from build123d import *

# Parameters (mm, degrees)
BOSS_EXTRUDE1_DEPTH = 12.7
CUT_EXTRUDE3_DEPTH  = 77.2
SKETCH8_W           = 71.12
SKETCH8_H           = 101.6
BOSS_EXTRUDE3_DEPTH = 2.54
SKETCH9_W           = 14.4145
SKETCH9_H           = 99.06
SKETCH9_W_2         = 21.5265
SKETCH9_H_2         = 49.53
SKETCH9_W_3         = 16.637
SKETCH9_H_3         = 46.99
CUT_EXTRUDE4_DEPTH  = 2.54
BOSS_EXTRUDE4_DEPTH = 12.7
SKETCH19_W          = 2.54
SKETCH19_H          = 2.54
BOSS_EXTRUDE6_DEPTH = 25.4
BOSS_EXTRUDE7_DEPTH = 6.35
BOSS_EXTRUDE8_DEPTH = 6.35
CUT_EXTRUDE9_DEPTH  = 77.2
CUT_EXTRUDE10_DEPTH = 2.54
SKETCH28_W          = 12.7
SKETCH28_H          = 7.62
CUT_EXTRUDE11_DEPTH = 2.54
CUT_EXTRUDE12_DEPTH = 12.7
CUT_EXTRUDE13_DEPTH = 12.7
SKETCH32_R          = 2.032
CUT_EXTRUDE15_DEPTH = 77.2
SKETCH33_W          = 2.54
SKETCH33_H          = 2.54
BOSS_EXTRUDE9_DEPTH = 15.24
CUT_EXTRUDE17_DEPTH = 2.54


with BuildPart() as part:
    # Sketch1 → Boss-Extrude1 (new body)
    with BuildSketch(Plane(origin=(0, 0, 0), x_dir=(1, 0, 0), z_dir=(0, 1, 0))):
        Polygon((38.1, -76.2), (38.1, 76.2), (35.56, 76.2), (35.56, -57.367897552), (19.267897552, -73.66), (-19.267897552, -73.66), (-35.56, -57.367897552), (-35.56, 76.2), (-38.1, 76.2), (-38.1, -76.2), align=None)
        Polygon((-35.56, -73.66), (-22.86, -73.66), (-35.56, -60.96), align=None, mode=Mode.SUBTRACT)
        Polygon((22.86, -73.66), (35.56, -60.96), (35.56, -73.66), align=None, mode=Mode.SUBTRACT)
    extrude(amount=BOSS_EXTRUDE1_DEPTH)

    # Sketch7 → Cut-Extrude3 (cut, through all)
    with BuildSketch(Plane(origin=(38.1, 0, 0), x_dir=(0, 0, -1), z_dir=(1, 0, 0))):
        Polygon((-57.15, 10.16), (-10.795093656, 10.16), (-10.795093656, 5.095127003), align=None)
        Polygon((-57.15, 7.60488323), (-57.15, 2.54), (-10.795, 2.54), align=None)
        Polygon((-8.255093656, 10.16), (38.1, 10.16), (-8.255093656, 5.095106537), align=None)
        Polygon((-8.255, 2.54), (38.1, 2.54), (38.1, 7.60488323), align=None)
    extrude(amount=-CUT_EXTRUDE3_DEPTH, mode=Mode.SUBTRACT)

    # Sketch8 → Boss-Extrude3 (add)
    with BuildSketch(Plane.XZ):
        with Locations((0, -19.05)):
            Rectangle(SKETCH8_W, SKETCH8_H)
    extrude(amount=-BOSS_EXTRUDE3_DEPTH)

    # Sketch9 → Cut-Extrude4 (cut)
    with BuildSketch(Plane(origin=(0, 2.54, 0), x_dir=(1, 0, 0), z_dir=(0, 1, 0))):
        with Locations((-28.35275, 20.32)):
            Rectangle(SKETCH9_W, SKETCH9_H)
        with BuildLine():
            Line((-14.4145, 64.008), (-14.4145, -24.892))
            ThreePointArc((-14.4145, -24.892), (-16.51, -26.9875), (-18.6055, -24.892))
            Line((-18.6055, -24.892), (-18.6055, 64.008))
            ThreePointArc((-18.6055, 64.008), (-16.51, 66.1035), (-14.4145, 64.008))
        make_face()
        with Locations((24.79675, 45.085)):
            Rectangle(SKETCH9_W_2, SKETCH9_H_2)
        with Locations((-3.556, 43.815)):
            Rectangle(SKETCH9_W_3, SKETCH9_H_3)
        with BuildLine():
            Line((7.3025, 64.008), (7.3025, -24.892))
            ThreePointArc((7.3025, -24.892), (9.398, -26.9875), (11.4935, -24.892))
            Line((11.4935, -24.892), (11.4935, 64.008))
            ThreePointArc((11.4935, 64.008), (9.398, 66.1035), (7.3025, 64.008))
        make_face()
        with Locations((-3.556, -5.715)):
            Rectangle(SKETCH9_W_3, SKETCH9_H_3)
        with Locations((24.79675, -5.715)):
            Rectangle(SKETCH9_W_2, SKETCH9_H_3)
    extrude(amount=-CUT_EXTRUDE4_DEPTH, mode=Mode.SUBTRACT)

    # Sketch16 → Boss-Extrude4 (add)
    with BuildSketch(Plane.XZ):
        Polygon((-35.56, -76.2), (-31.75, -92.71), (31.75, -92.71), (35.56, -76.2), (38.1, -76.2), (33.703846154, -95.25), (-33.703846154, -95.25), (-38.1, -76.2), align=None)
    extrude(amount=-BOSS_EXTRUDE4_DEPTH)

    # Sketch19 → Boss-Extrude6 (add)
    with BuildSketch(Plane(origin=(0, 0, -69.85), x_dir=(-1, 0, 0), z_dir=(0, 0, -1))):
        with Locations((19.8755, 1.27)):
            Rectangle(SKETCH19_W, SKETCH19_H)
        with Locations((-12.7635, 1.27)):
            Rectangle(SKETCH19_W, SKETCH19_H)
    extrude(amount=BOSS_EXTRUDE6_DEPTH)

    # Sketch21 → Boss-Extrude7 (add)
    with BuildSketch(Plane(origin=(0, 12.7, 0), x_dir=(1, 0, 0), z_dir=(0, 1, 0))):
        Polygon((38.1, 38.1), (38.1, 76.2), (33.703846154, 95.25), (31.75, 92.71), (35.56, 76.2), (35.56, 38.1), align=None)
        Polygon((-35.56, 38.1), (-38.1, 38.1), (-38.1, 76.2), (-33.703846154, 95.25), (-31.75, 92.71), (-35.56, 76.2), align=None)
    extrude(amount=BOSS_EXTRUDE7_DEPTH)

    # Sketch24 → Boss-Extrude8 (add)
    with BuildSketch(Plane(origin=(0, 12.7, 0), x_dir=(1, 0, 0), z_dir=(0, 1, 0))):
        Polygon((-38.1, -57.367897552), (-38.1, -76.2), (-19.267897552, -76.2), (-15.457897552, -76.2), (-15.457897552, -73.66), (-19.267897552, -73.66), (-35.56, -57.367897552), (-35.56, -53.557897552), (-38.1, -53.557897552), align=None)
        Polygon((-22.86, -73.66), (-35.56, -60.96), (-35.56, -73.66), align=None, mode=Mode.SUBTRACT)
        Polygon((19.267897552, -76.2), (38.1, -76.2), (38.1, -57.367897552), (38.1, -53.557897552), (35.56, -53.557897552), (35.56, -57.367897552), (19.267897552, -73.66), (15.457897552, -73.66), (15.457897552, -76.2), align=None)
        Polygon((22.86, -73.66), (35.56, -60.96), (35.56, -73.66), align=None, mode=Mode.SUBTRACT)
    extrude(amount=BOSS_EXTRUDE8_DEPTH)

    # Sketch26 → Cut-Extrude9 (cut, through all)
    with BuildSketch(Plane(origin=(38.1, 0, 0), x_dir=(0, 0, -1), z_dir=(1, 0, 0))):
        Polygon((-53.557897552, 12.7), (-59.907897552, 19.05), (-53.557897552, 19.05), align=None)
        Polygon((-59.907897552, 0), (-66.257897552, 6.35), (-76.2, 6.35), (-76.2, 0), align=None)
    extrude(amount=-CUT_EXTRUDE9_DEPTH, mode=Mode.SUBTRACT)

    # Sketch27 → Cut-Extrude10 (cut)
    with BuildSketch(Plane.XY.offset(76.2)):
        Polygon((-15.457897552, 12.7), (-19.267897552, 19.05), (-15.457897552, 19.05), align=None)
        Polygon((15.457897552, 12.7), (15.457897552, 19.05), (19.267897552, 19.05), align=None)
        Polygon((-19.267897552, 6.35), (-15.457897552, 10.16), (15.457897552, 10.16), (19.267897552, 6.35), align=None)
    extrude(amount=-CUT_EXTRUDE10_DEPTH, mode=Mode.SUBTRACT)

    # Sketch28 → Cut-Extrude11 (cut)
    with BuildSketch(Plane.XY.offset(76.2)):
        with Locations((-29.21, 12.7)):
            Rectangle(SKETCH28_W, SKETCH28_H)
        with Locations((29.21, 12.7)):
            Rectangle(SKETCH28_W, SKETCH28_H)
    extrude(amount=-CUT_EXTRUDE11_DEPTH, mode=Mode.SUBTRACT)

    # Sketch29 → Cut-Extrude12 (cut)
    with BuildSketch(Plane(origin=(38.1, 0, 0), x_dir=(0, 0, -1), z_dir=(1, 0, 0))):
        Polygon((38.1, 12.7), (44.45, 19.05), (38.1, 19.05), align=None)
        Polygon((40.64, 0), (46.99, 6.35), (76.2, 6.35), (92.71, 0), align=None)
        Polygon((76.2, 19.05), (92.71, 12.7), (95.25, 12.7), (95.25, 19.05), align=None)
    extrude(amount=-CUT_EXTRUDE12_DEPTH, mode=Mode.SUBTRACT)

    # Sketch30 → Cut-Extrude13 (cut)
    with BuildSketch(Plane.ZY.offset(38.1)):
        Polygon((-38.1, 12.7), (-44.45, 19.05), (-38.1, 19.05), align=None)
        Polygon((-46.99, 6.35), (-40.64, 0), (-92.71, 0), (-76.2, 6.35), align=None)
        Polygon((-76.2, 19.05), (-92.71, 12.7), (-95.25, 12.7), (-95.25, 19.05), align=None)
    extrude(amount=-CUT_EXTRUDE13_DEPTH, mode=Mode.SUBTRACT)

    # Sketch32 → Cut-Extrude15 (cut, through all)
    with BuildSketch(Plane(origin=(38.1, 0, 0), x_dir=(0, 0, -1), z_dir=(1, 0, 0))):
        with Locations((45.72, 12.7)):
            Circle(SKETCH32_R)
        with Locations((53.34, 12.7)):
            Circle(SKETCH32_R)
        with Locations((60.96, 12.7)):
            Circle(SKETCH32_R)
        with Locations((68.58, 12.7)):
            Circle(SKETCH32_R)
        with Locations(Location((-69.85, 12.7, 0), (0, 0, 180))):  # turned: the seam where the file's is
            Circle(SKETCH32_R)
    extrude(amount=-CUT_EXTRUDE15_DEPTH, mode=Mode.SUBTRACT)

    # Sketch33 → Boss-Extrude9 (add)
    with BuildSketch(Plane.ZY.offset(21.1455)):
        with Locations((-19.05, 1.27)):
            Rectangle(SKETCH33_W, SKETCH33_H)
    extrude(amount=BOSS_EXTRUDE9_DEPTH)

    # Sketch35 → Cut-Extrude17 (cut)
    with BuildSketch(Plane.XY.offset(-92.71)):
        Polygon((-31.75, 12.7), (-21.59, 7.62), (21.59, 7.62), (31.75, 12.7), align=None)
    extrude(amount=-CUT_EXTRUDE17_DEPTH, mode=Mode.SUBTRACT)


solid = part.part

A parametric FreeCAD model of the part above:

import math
import FreeCAD as App
import Part
import Sketcher
Q = App.Units.Quantity

doc = App.newDocument("Part")
body = doc.addObject("PartDesign::Body", "Body")

# Sketch on XZ plane
sketch1 = body.newObject("Sketcher::SketchObject", "Sketch")
sketch1.AttachmentSupport = (doc.getObject("XZ_Plane"), [""])
sketch1.MapMode = "FlatFace"
sketch1.addGeometry([
    Part.LineSegment(App.Vector(38.1, 76.2, 0), App.Vector(38.1, -76.2, 0)),  # 0
    Part.LineSegment(App.Vector(38.1, -76.2, 0), App.Vector(35.6, -76.2, 0)),  # 1
    Part.LineSegment(App.Vector(35.6, -76.2, 0), App.Vector(35.6, 57.4, 0)),  # 2
    Part.LineSegment(App.Vector(35.6, 57.4, 0), App.Vector(19.3, 73.7, 0)),  # 3
    Part.LineSegment(App.Vector(19.3, 73.7, 0), App.Vector(-19.3, 73.7, 0)),  # 4
    Part.LineSegment(App.Vector(-19.3, 73.7, 0), App.Vector(-35.6, 57.4, 0)),  # 5
    Part.LineSegment(App.Vector(-35.6, 57.4, 0), App.Vector(-35.6, -76.2, 0)),  # 6
    Part.LineSegment(App.Vector(-35.6, -76.2, 0), App.Vector(-38.1, -76.2, 0)),  # 7
    Part.LineSegment(App.Vector(-38.1, -76.2, 0), App.Vector(-38.1, 76.2, 0)),  # 8
    Part.LineSegment(App.Vector(-38.1, 76.2, 0), App.Vector(38.1, 76.2, 0)),  # 9
    Part.LineSegment(App.Vector(-22.9, 73.7, 0), App.Vector(-35.6, 73.7, 0)),  # 10
    Part.LineSegment(App.Vector(-35.6, 73.7, 0), App.Vector(-35.6, 61, 0)),  # 11
    Part.LineSegment(App.Vector(-35.6, 61, 0), App.Vector(-22.9, 73.7, 0)),  # 12
    Part.LineSegment(App.Vector(35.6, 73.7, 0), App.Vector(22.9, 73.7, 0)),  # 13
    Part.LineSegment(App.Vector(22.9, 73.7, 0), App.Vector(35.6, 61, 0)),  # 14
    Part.LineSegment(App.Vector(35.6, 61, 0), App.Vector(35.6, 73.7, 0)),  # 15
], False)
sketch1.addConstraint([
    Sketcher.Constraint("Coincident", 0, 2, 1, 1),
    Sketcher.Constraint("Coincident", 1, 2, 2, 1),
    Sketcher.Constraint("Coincident", 2, 2, 3, 1),
    Sketcher.Constraint("Coincident", 3, 2, 4, 1),
    Sketcher.Constraint("Coincident", 4, 2, 5, 1),
    Sketcher.Constraint("Coincident", 5, 2, 6, 1),
    Sketcher.Constraint("Coincident", 6, 2, 7, 1),
    Sketcher.Constraint("Coincident", 7, 2, 8, 1),
    Sketcher.Constraint("Coincident", 8, 2, 9, 1),
    Sketcher.Constraint("Coincident", 9, 2, 0, 1),
    Sketcher.Constraint("Coincident", 10, 2, 11, 1),
    Sketcher.Constraint("Coincident", 11, 2, 12, 1),
    Sketcher.Constraint("Coincident", 12, 2, 10, 1),
    Sketcher.Constraint("Coincident", 13, 2, 14, 1),
    Sketcher.Constraint("Coincident", 14, 2, 15, 1),
    Sketcher.Constraint("Coincident", 15, 2, 13, 1),
    Sketcher.Constraint("Vertical", 0),
    Sketcher.Constraint("Horizontal", 1),
    Sketcher.Constraint("Vertical", 2),
    Sketcher.Constraint("Horizontal", 4),
    Sketcher.Constraint("Vertical", 6),
    Sketcher.Constraint("Horizontal", 7),
    Sketcher.Constraint("Vertical", 8),
    Sketcher.Constraint("Horizontal", 9),
    Sketcher.Constraint("Horizontal", 10),
    Sketcher.Constraint("Vertical", 11),
    Sketcher.Constraint("Horizontal", 13),
    Sketcher.Constraint("Vertical", 15),
    Sketcher.Constraint("Symmetric", 0, 2, 8, 2, -1, 1),
    Sketcher.Constraint("Symmetric", 2, 2, 5, 2, -2),
    Sketcher.Constraint("Symmetric", 12, 2, 13, 2, -2),
    Sketcher.Constraint("Symmetric", 11, 2, 14, 2, -2),
    Sketcher.Constraint("Perpendicular", 3, 5),
    Sketcher.Constraint("Parallel", 5, 12),
    Sketcher.Constraint("Perpendicular", 12, 14),
    Sketcher.Constraint("Horizontal", 1, 2, 6, 2),
    Sketcher.Constraint("Horizontal", 4, 2, 10, 2),
    Sketcher.Constraint("Vertical", 6, 2, 10, 2),
    Sketcher.Constraint("DistanceX", 9, 1, 9, 2, Q("3 in")),
    Sketcher.Constraint("DistanceY", 0, 2, 0, 1, Q("6 in")),
    Sketcher.Constraint("DistanceX", 1, 2, 1, 1, Q("0.1 in")),
    Sketcher.Constraint("DistanceX", 10, 2, 10, 1, Q("0.5 in")),
    Sketcher.Constraint("DistanceY", -1, 1, 3, 2, Q("2.9 in")),
    Sketcher.Constraint("DistanceX", 4, 2, 4, 1, Q("38.535795 mm")),
])
pad1 = body.newObject("PartDesign::Pad", "Pad")
pad1.Profile = sketch1
pad1.Length = Q("0.5 in")
pad1.Reversed = True

# Sketch on YZ plane
sketch2 = body.newObject("Sketcher::SketchObject", "Sketch001")
sketch2.AttachmentSupport = (doc.getObject("YZ_Plane"), [""])
sketch2.MapMode = "FlatFace"
sketch2.AttachmentOffset = App.Placement(App.Vector(0, 0, 1.5 * 25.4), App.Rotation())
sketch2.addGeometry([
    Part.LineSegment(App.Vector(10, 11, 0), App.Vector(10, 57, 0)),  # 0
    Part.LineSegment(App.Vector(10, 57, 0), App.Vector(5, 11, 0)),  # 1
    Part.LineSegment(App.Vector(5, 11, 0), App.Vector(10, 11, 0)),  # 2
    Part.LineSegment(App.Vector(8, 57, 0), App.Vector(3, 57, 0)),  # 3
    Part.LineSegment(App.Vector(3, 57, 0), App.Vector(3, 11, 0)),  # 4
    Part.LineSegment(App.Vector(3, 11, 0), App.Vector(8, 57, 0)),  # 5
    Part.LineSegment(App.Vector(10, -38, 0), App.Vector(10, 8, 0)),  # 6
    Part.LineSegment(App.Vector(10, 8, 0), App.Vector(5, 8, 0)),  # 7
    Part.LineSegment(App.Vector(5, 8, 0), App.Vector(10, -38, 0)),  # 8
    Part.LineSegment(App.Vector(3, 8, 0), App.Vector(3, -38, 0)),  # 9
    Part.LineSegment(App.Vector(3, -38, 0), App.Vector(8, -38, 0)),  # 10
    Part.LineSegment(App.Vector(8, -38, 0), App.Vector(3, 8, 0)),  # 11
], False)
sketch2.addConstraint([
    Sketcher.Constraint("Coincident", 0, 2, 1, 1),
    Sketcher.Constraint("Coincident", 1, 2, 2, 1),
    Sketcher.Constraint("Coincident", 2, 2, 0, 1),
    Sketcher.Constraint("Coincident", 3, 2, 4, 1),
    Sketcher.Constraint("Coincident", 4, 2, 5, 1),
    Sketcher.Constraint("Coincident", 5, 2, 3, 1),
    Sketcher.Constraint("Coincident", 6, 2, 7, 1),
    Sketcher.Constraint("Coincident", 7, 2, 8, 1),
    Sketcher.Constraint("Coincident", 8, 2, 6, 1),
    Sketcher.Constraint("Coincident", 9, 2, 10, 1),
    Sketcher.Constraint("Coincident", 10, 2, 11, 1),
    Sketcher.Constraint("Coincident", 11, 2, 9, 1),
    Sketcher.Constraint("Vertical", 0),
    Sketcher.Constraint("Horizontal", 2),
    Sketcher.Constraint("Horizontal", 3),
    Sketcher.Constraint("Vertical", 4),
    Sketcher.Constraint("Vertical", 6),
    Sketcher.Constraint("Horizontal", 7),
    Sketcher.Constraint("Vertical", 9),
    Sketcher.Constraint("Horizontal", 10),
    Sketcher.Constraint("Parallel", 1, 5),
    Sketcher.Constraint("Parallel", 8, 11),
    Sketcher.Constraint("Horizontal", 0, 2, 3, 2),
    Sketcher.Constraint("Horizontal", 8, 2, 9, 2),
    Sketcher.Constraint("Vertical", 2, 2, 6, 2),
    Sketcher.Constraint("Vertical", 4, 2, 9, 2),
    Sketcher.Constraint("Vertical", 5, 2, 10, 2),
    Sketcher.Constraint("Equal", 4, 9),
    Sketcher.Constraint("DistanceX", -1, 1, 0, 2, Q("0.4 in")),
    Sketcher.Constraint("DistanceX", -1, 1, 3, 2, Q("0.1 in")),
    Sketcher.Constraint("DistanceY", 8, 2, -1, 1, Q("1.5 in")),
    Sketcher.Constraint("DistanceY", 6, 2, 2, 2, Q("0.1 in")),
    Sketcher.Constraint("DistanceY", 11, 2, 4, 2, Q("0.1 in")),
    Sketcher.Constraint("DistanceY", 4, 2, 4, 1, Q("1.825 in")),
    Sketcher.Constraint("Distance", 5, Q("46.630881 mm")),
    Sketcher.Constraint("DistanceX", 2, 1, 2, 2, Q("5.064873 mm")),
])
pocket1 = body.newObject("PartDesign::Pocket", "Pocket")
pocket1.Profile = sketch2
pocket1.Type = "ThroughAll"

# Sketch on XZ plane
sketch3 = body.newObject("Sketcher::SketchObject", "Sketch002")
sketch3.AttachmentSupport = (doc.getObject("XZ_Plane"), [""])
sketch3.MapMode = "FlatFace"
sketch3.addGeometry([
    Part.LineSegment(App.Vector(-36, 32, 0), App.Vector(-36, -70, 0)),
    Part.LineSegment(App.Vector(-36, -70, 0), App.Vector(36, -70, 0)),
    Part.LineSegment(App.Vector(36, -70, 0), App.Vector(36, 32, 0)),
    Part.LineSegment(App.Vector(36, 32, 0), App.Vector(-36, 32, 0)),
], False)
sketch3.addConstraint([
    Sketcher.Constraint("Coincident", 0, 2, 1, 1),
    Sketcher.Constraint("Coincident", 1, 2, 2, 1),
    Sketcher.Constraint("Coincident", 2, 2, 3, 1),
    Sketcher.Constraint("Coincident", 3, 2, 0, 1),
    Sketcher.Constraint("Vertical", 0),
    Sketcher.Constraint("Horizontal", 1),
    Sketcher.Constraint("Vertical", 2),
    Sketcher.Constraint("Horizontal", 3),
    Sketcher.Constraint("DistanceY", 0, 2, 0, 1, Q("4 in")),
    Sketcher.Constraint("DistanceX", 1, 1, 1, 2, Q("2.8 in")),
    Sketcher.Constraint("DistanceX", 0, 2, -1, 1, Q("1.4 in")),
    Sketcher.Constraint("DistanceY", 0, 2, -1, 1, Q("2.75 in")),
])
pad2 = body.newObject("PartDesign::Pad", "Pad001")
pad2.Profile = sketch3
pad2.Length = Q("0.1 in")
pad2.Reversed = True

# Sketch on XZ plane
sketch4 = body.newObject("Sketcher::SketchObject", "Sketch003")
sketch4.AttachmentSupport = (doc.getObject("XZ_Plane"), [""])
sketch4.MapMode = "FlatFace"
sketch4.AttachmentOffset = App.Placement(App.Vector(0, 0, -0.1 * 25.4), App.Rotation())
sketch4.addGeometry([
    Part.LineSegment(App.Vector(-35.6, -69.8, 0), App.Vector(-35.6, 29.2, 0)),  # 0
    Part.LineSegment(App.Vector(-35.6, 29.2, 0), App.Vector(-21.1, 29.2, 0)),  # 1
    Part.LineSegment(App.Vector(-21.1, 29.2, 0), App.Vector(-21.1, -69.8, 0)),  # 2
    Part.LineSegment(App.Vector(-21.1, -69.8, 0), App.Vector(-35.6, -69.8, 0)),  # 3
    Part.LineSegment(App.Vector(-14.4, 24.9, 0), App.Vector(-14.4, -64, 0)),  # 4
    Part.ArcOfCircle(Part.Circle(App.Vector(-16.5, -64, 0), App.Vector(0, 0, 1), 2.1), math.radians(180), math.radians(360)),  # 5
    Part.LineSegment(App.Vector(-18.6, -64, 0), App.Vector(-18.6, 24.9, 0)),  # 6
    Part.ArcOfCircle(Part.Circle(App.Vector(-16.5, 24.9, 0), App.Vector(0, 0, 1), 2.1), math.radians(0), math.radians(180)),  # 7
    Part.LineSegment(App.Vector(14, -69.8, 0), App.Vector(14, -20.3, 0)),  # 8
    Part.LineSegment(App.Vector(14, -20.3, 0), App.Vector(35.6, -20.3, 0)),  # 9
    Part.LineSegment(App.Vector(35.6, -20.3, 0), App.Vector(35.6, -69.8, 0)),  # 10
    Part.LineSegment(App.Vector(35.6, -69.8, 0), App.Vector(14, -69.8, 0)),  # 11
    Part.LineSegment(App.Vector(-11.9, -67.3, 0), App.Vector(-11.9, -20.3, 0)),  # 12
    Part.LineSegment(App.Vector(-11.9, -20.3, 0), App.Vector(4.8, -20.3, 0)),  # 13
    Part.LineSegment(App.Vector(4.8, -20.3, 0), App.Vector(4.8, -67.3, 0)),  # 14
    Part.LineSegment(App.Vector(4.8, -67.3, 0), App.Vector(-11.9, -67.3, 0)),  # 15
    Part.LineSegment(App.Vector(7.3, -64, 0), App.Vector(7.3, 24.9, 0)),  # 16
    Part.ArcOfCircle(Part.Circle(App.Vector(9.4, 24.9, 0), App.Vector(0, 0, 1), 2.1), math.radians(0), math.radians(180)),  # 17
    Part.LineSegment(App.Vector(11.5, 24.9, 0), App.Vector(11.5, -64, 0)),  # 18
    Part.ArcOfCircle(Part.Circle(App.Vector(9.4, -64, 0), App.Vector(0, 0, 1), 2.1), math.radians(180), math.radians(360)),  # 19
    Part.LineSegment(App.Vector(-11.9, -17.8, 0), App.Vector(-11.9, 29.2, 0)),  # 20
    Part.LineSegment(App.Vector(-11.9, 29.2, 0), App.Vector(4.8, 29.2, 0)),  # 21
    Part.LineSegment(App.Vector(4.8, 29.2, 0), App.Vector(4.8, -17.8, 0)),  # 22
    Part.LineSegment(App.Vector(4.8, -17.8, 0), App.Vector(-11.9, -17.8, 0)),  # 23
    Part.LineSegment(App.Vector(14, -17.8, 0), App.Vector(14, 29.2, 0)),  # 24
    Part.LineSegment(App.Vector(14, 29.2, 0), App.Vector(35.6, 29.2, 0)),  # 25
    Part.LineSegment(App.Vector(35.6, 29.2, 0), App.Vector(35.6, -17.8, 0)),  # 26
    Part.LineSegment(App.Vector(35.6, -17.8, 0), App.Vector(14, -17.8, 0)),  # 27
], False)
sketch4.addConstraint([
    Sketcher.Constraint("Coincident", 0, 2, 1, 1),
    Sketcher.Constraint("Coincident", 1, 2, 2, 1),
    Sketcher.Constraint("Coincident", 2, 2, 3, 1),
    Sketcher.Constraint("Coincident", 3, 2, 0, 1),
    Sketcher.Constraint("Tangent", 4, 2, 5, 2),
    Sketcher.Constraint("Tangent", 5, 1, 6, 1),
    Sketcher.Constraint("Tangent", 6, 2, 7, 2),
    Sketcher.Constraint("Tangent", 7, 1, 4, 1),
    Sketcher.Constraint("Coincident", 8, 2, 9, 1),
    Sketcher.Constraint("Coincident", 9, 2, 10, 1),
    Sketcher.Constraint("Coincident", 10, 2, 11, 1),
    Sketcher.Constraint("Coincident", 11, 2, 8, 1),
    Sketcher.Constraint("Coincident", 12, 2, 13, 1),
    Sketcher.Constraint("Coincident", 13, 2, 14, 1),
    Sketcher.Constraint("Coincident", 14, 2, 15, 1),
    Sketcher.Constraint("Coincident", 15, 2, 12, 1),
    Sketcher.Constraint("Tangent", 16, 2, 17, 2),
    Sketcher.Constraint("Tangent", 17, 1, 18, 1),
    Sketcher.Constraint("Tangent", 18, 2, 19, 2),
    Sketcher.Constraint("Tangent", 19, 1, 16, 1),
    Sketcher.Constraint("Coincident", 20, 2, 21, 1),
    Sketcher.Constraint("Coincident", 21, 2, 22, 1),
    Sketcher.Constraint("Coincident", 22, 2, 23, 1),
    Sketcher.Constraint("Coincident", 23, 2, 20, 1),
    Sketcher.Constraint("Coincident", 24, 2, 25, 1),
    Sketcher.Constraint("Coincident", 25, 2, 26, 1),
    Sketcher.Constraint("Coincident", 26, 2, 27, 1),
    Sketcher.Constraint("Coincident", 27, 2, 24, 1),
    Sketcher.Constraint("Vertical", 0),
    Sketcher.Constraint("Horizontal", 1),
    Sketcher.Constraint("Vertical", 2),
    Sketcher.Constraint("Horizontal", 3),
    Sketcher.Constraint("Vertical", 4),
    Sketcher.Constraint("Vertical", 6),
    Sketcher.Constraint("Vertical", 8),
    Sketcher.Constraint("Horizontal", 9),
    Sketcher.Constraint("Vertical", 10),
    Sketcher.Constraint("Horizontal", 11),
    Sketcher.Constraint("Vertical", 12),
    Sketcher.Constraint("Horizontal", 13),
    Sketcher.Constraint("Vertical", 14),
    Sketcher.Constraint("Horizontal", 15),
    Sketcher.Constraint("Vertical", 16),
    Sketcher.Constraint("Vertical", 18),
    Sketcher.Constraint("Vertical", 20),
    Sketcher.Constraint("Horizontal", 21),
    Sketcher.Constraint("Vertical", 22),
    Sketcher.Constraint("Horizontal", 23),
    Sketcher.Constraint("Vertical", 24),
    Sketcher.Constraint("Horizontal", 25),
    Sketcher.Constraint("Vertical", 26),
    Sketcher.Constraint("Horizontal", 27),
    Sketcher.Constraint("Equal", 7, 17),
    Sketcher.Constraint("Symmetric", 3, 2, 10, 2, -2),
    Sketcher.Constraint("Symmetric", 0, 2, 25, 2, -2),
    Sketcher.Constraint("Horizontal", 7, 3, 17, 3),
    Sketcher.Constraint("Horizontal", 5, 3, 19, 3),
    Sketcher.Constraint("Horizontal", 9, 2, 12, 2),
    Sketcher.Constraint("Horizontal", 1, 2, 20, 2),
    Sketcher.Constraint("Horizontal", 23, 2, 26, 2),
    Sketcher.Constraint("Vertical", 15, 2, 20, 2),
    Sketcher.Constraint("Vertical", 14, 2, 21, 2),
    Sketcher.Constraint("Vertical", 11, 2, 24, 2),
    Sketcher.Constraint("Equal", 14, 20),
    Sketcher.Constraint("DistanceY", 0, 1, 0, 2, Q("3.9 in")),
    Sketcher.Constraint("DistanceY", 4, 2, 4, 1, Q("3.5 in")),
    Sketcher.Constraint("DistanceY", 8, 1, 8, 2, Q("1.95 in")),
    Sketcher.Constraint("DistanceY", 12, 1, 12, 2, Q("1.85 in")),
    Sketcher.Constraint("DistanceX", 0, 2, -1, 1, Q("1.4 in")),
    Sketcher.Constraint("DistanceY", 8, 2, -1, 1, Q("0.8 in")),
    Sketcher.Constraint("Radius", 5, Q("0.0825 in")),
    Sketcher.Constraint("DistanceX", 2, 2, 5, 1, Q("0.1 in")),
    Sketcher.Constraint("DistanceX", 4, 2, 12, 2, Q("0.1 in")),
    Sketcher.Constraint("DistanceX", 18, 2, 11, 2, Q("0.1 in")),
    Sketcher.Constraint("DistanceX", 14, 2, 19, 1, Q("0.1 in")),
    Sketcher.Constraint("DistanceX", 13, 1, 13, 2, Q("0.655 in")),
    Sketcher.Constraint("DistanceX", 5, 3, -1, 1, Q("0.65 in")),
    Sketcher.Constraint("DistanceY", 5, 3, -1, 1, Q("2.52 in")),
])
pocket2 = body.newObject("PartDesign::Pocket", "Pocket001")
pocket2.Profile = sketch4
pocket2.Length = Q("0.1 in")
pocket2.Reversed = True

# Sketch on XZ plane
sketch5 = body.newObject("Sketcher::SketchObject", "Sketch004")
sketch5.AttachmentSupport = (doc.getObject("XZ_Plane"), [""])
sketch5.MapMode = "FlatFace"
sketch5.addGeometry([
    Part.LineSegment(App.Vector(-31.8, -92.7, 0), App.Vector(-35.6, -76.2, 0)),  # 0
    Part.LineSegment(App.Vector(-35.6, -76.2, 0), App.Vector(-38.1, -76.2, 0)),  # 1
    Part.LineSegment(App.Vector(-38.1, -76.2, 0), App.Vector(-33.7, -95.2, 0)),  # 2
    Part.LineSegment(App.Vector(-33.7, -95.2, 0), App.Vector(33.7, -95.2, 0)),  # 3
    Part.LineSegment(App.Vector(33.7, -95.2, 0), App.Vector(38.1, -76.2, 0)),  # 4
    Part.LineSegment(App.Vector(38.1, -76.2, 0), App.Vector(35.6, -76.2, 0)),  # 5
    Part.LineSegment(App.Vector(35.6, -76.2, 0), App.Vector(31.8, -92.7, 0)),  # 6
    Part.LineSegment(App.Vector(31.8, -92.7, 0), App.Vector(-31.8, -92.7, 0)),  # 7
], False)
sketch5.addConstraint([
    Sketcher.Constraint("Coincident", 0, 2, 1, 1),
    Sketcher.Constraint("Coincident", 1, 2, 2, 1),
    Sketcher.Constraint("Coincident", 2, 2, 3, 1),
    Sketcher.Constraint("Coincident", 3, 2, 4, 1),
    Sketcher.Constraint("Coincident", 4, 2, 5, 1),
    Sketcher.Constraint("Coincident", 5, 2, 6, 1),
    Sketcher.Constraint("Coincident", 6, 2, 7, 1),
    Sketcher.Constraint("Coincident", 7, 2, 0, 1),
    Sketcher.Constraint("Horizontal", 1),
    Sketcher.Constraint("Horizontal", 3),
    Sketcher.Constraint("Horizontal", 5),
    Sketcher.Constraint("Horizontal", 7),
    Sketcher.Constraint("Symmetric", 1, 2, 4, 2, -2),
    Sketcher.Constraint("Parallel", 0, 2),
    Sketcher.Constraint("Parallel", 4, 6),
    Sketcher.Constraint("Equal", 1, 5),
    Sketcher.Constraint("Equal", 2, 4),
    Sketcher.Constraint("DistanceX", 1, 2, 1, 1, Q("0.1 in")),
    Sketcher.Constraint("DistanceX", 7, 2, 7, 1, Q("2.5 in")),
    Sketcher.Constraint("DistanceY", 0, 2, -1, 1, Q("3 in")),
    Sketcher.Constraint("DistanceX", 1, 2, 4, 2, Q("3 in")),
    Sketcher.Constraint("DistanceY", 3, 2, 6, 2, Q("0.1 in")),
    Sketcher.Constraint("DistanceY", 2, 2, -1, 1, Q("3.75 in")),
])
pad3 = body.newObject("PartDesign::Pad", "Pad002")
pad3.Profile = sketch5
pad3.Length = Q("0.5 in")
pad3.Reversed = True

# Sketch on XY plane
sketch6 = body.newObject("Sketcher::SketchObject", "Sketch005")
sketch6.AttachmentSupport = (doc.getObject("XY_Plane"), [""])
sketch6.MapMode = "FlatFace"
sketch6.AttachmentOffset = App.Placement(App.Vector(0, 0, -2.75 * 25.4), App.Rotation())
sketch6.addGeometry([
    Part.LineSegment(App.Vector(-18.6, 2.5, 0), App.Vector(-18.6, 0, 0)),  # 0
    Part.LineSegment(App.Vector(-18.6, 0, 0), App.Vector(-21.1, 0, 0)),  # 1
    Part.LineSegment(App.Vector(-21.1, 0, 0), App.Vector(-21.1, 2.5, 0)),  # 2
    Part.LineSegment(App.Vector(-21.1, 2.5, 0), App.Vector(-18.6, 2.5, 0)),  # 3
    Part.LineSegment(App.Vector(14, 2.5, 0), App.Vector(14, 0, 0)),  # 4
    Part.LineSegment(App.Vector(14, 0, 0), App.Vector(11.5, 0, 0)),  # 5
    Part.LineSegment(App.Vector(11.5, 0, 0), App.Vector(11.5, 2.5, 0)),  # 6
    Part.LineSegment(App.Vector(11.5, 2.5, 0), App.Vector(14, 2.5, 0)),  # 7
], False)
sketch6.addConstraint([
    Sketcher.Constraint("Coincident", 0, 2, 1, 1),
    Sketcher.Constraint("Coincident", 1, 2, 2, 1),
    Sketcher.Constraint("Coincident", 2, 2, 3, 1),
    Sketcher.Constraint("Coincident", 3, 2, 0, 1),
    Sketcher.Constraint("Coincident", 4, 2, 5, 1),
    Sketcher.Constraint("Coincident", 5, 2, 6, 1),
    Sketcher.Constraint("Coincident", 6, 2, 7, 1),
    Sketcher.Constraint("Coincident", 7, 2, 4, 1),
    Sketcher.Constraint("Vertical", 0),
    Sketcher.Constraint("Horizontal", 1),
    Sketcher.Constraint("Vertical", 2),
    Sketcher.Constraint("Horizontal", 3),
    Sketcher.Constraint("Vertical", 4),
    Sketcher.Constraint("Horizontal", 5),
    Sketcher.Constraint("Vertical", 6),
    Sketcher.Constraint("Horizontal", 7),
    Sketcher.Constraint("PointOnObject", 0, 2, -1),
    Sketcher.Constraint("PointOnObject", 4, 2, -1),
    Sketcher.Constraint("Horizontal", 3, 2, 6, 2),
    Sketcher.Constraint("Equal", 3, 5),
    Sketcher.Constraint("Equal", 7, 0),
    Sketcher.Constraint("DistanceX", 1, 2, 1, 1, Q("0.1 in")),
    Sketcher.Constraint("DistanceX", 0, 2, 4, 2, Q("1.285 in")),
    Sketcher.Constraint("DistanceX", 0, 2, -1, 1, Q("0.7325 in")),
])
pad4 = body.newObject("PartDesign::Pad", "Pad003")
pad4.Profile = sketch6
pad4.Length = Q("1 in")
pad4.Reversed = True

# Sketch on XZ plane
sketch7 = body.newObject("Sketcher::SketchObject", "Sketch006")
sketch7.AttachmentSupport = (doc.getObject("XZ_Plane"), [""])
sketch7.MapMode = "FlatFace"
sketch7.AttachmentOffset = App.Placement(App.Vector(0, 0, -0.5 * 25.4), App.Rotation())
sketch7.addGeometry([
    Part.LineSegment(App.Vector(38.1, -38.1, 0), App.Vector(38.1, -76.2, 0)),  # 0
    Part.LineSegment(App.Vector(38.1, -76.2, 0), App.Vector(33.7, -95.2, 0)),  # 1
    Part.LineSegment(App.Vector(33.7, -95.2, 0), App.Vector(31.8, -92.7, 0)),  # 2
    Part.LineSegment(App.Vector(31.8, -92.7, 0), App.Vector(35.6, -76.2, 0)),  # 3
    Part.LineSegment(App.Vector(35.6, -76.2, 0), App.Vector(35.6, -38.1, 0)),  # 4
    Part.LineSegment(App.Vector(35.6, -38.1, 0), App.Vector(38.1, -38.1, 0)),  # 5
    Part.LineSegment(App.Vector(-38.1, -38.1, 0), App.Vector(-35.6, -38.1, 0)),  # 6
    Part.LineSegment(App.Vector(-35.6, -38.1, 0), App.Vector(-35.6, -76.2, 0)),  # 7
    Part.LineSegment(App.Vector(-35.6, -76.2, 0), App.Vector(-31.8, -92.7, 0)),  # 8
    Part.LineSegment(App.Vector(-31.8, -92.7, 0), App.Vector(-33.7, -95.2, 0)),  # 9
    Part.LineSegment(App.Vector(-33.7, -95.2, 0), App.Vector(-38.1, -76.2, 0)),  # 10
    Part.LineSegment(App.Vector(-38.1, -76.2, 0), App.Vector(-38.1, -38.1, 0)),  # 11
], False)
sketch7.addConstraint([
    Sketcher.Constraint("Coincident", 0, 2, 1, 1),
    Sketcher.Constraint("Coincident", 1, 2, 2, 1),
    Sketcher.Constraint("Coincident", 2, 2, 3, 1),
    Sketcher.Constraint("Coincident", 3, 2, 4, 1),
    Sketcher.Constraint("Coincident", 4, 2, 5, 1),
    Sketcher.Constraint("Coincident", 5, 2, 0, 1),
    Sketcher.Constraint("Coincident", 6, 2, 7, 1),
    Sketcher.Constraint("Coincident", 7, 2, 8, 1),
    Sketcher.Constraint("Coincident", 8, 2, 9, 1),
    Sketcher.Constraint("Coincident", 9, 2, 10, 1),
    Sketcher.Constraint("Coincident", 10, 2, 11, 1),
    Sketcher.Constraint("Coincident", 11, 2, 6, 1),
    Sketcher.Constraint("Vertical", 0),
    Sketcher.Constraint("Vertical", 4),
    Sketcher.Constraint("Horizontal", 5),
    Sketcher.Constraint("Horizontal", 6),
    Sketcher.Constraint("Vertical", 7),
    Sketcher.Constraint("Vertical", 11),
    Sketcher.Constraint("Symmetric", 4, 2, 6, 2, -2),
    Sketcher.Constraint("Symmetric", 2, 2, 8, 2, -2),
    Sketcher.Constraint("Symmetric", 1, 2, 9, 2, -2),
    Sketcher.Constraint("Symmetric", 0, 2, 10, 2, -2),
    Sketcher.Constraint("Parallel", 1, 3),
    Sketcher.Constraint("Parallel", 8, 10),
    Sketcher.Constraint("Horizontal", 0, 2, 3, 2),
    Sketcher.Constraint("DistanceX", 5, 1, 5, 2, Q("0.1 in")),
    Sketcher.Constraint("DistanceY", 0, 2, 0, 1, Q("1.5 in")),
    Sketcher.Constraint("DistanceY", 0, 2, -1, 1, Q("3 in")),
    Sketcher.Constraint("DistanceX", -1, 1, 0, 2, Q("1.5 in")),
    Sketcher.Constraint("DistanceY", 1, 2, 2, 2, Q("0.1 in")),
    Sketcher.Constraint("DistanceX", 8, 2, 2, 2, Q("2.5 in")),
    Sketcher.Constraint("DistanceY", 1, 2, -1, 1, Q("3.75 in")),
])
pad5 = body.newObject("PartDesign::Pad", "Pad004")
pad5.Profile = sketch7
pad5.Length = Q("0.25 in")
pad5.Reversed = True

# Sketch on XZ plane
sketch8 = body.newObject("Sketcher::SketchObject", "Sketch007")
sketch8.AttachmentSupport = (doc.getObject("XZ_Plane"), [""])
sketch8.MapMode = "FlatFace"
sketch8.AttachmentOffset = App.Placement(App.Vector(0, 0, -0.5 * 25.4), App.Rotation())
sketch8.addGeometry([
    Part.LineSegment(App.Vector(-38.1, 76.2, 0), App.Vector(-15.5, 76.2, 0)),  # 0
    Part.LineSegment(App.Vector(-15.5, 76.2, 0), App.Vector(-15.5, 73.7, 0)),  # 1
    Part.LineSegment(App.Vector(-15.5, 73.7, 0), App.Vector(-19.3, 73.7, 0)),  # 2
    Part.LineSegment(App.Vector(-19.3, 73.7, 0), App.Vector(-35.6, 57.4, 0)),  # 3
    Part.LineSegment(App.Vector(-35.6, 57.4, 0), App.Vector(-35.6, 53.6, 0)),  # 4
    Part.LineSegment(App.Vector(-35.6, 53.6, 0), App.Vector(-38.1, 53.6, 0)),  # 5
    Part.LineSegment(App.Vector(-38.1, 53.6, 0), App.Vector(-38.1, 76.2, 0)),  # 6
    Part.LineSegment(App.Vector(-35.6, 61, 0), App.Vector(-22.9, 73.7, 0)),  # 7
    Part.LineSegment(App.Vector(-22.9, 73.7, 0), App.Vector(-35.6, 73.7, 0)),  # 8
    Part.LineSegment(App.Vector(-35.6, 73.7, 0), App.Vector(-35.6, 61, 0)),  # 9
    Part.LineSegment(App.Vector(38.1, 76.2, 0), App.Vector(38.1, 53.6, 0)),  # 10
    Part.LineSegment(App.Vector(38.1, 53.6, 0), App.Vector(35.6, 53.6, 0)),  # 11
    Part.LineSegment(App.Vector(35.6, 53.6, 0), App.Vector(35.6, 57.4, 0)),  # 12
    Part.LineSegment(App.Vector(35.6, 57.4, 0), App.Vector(19.3, 73.7, 0)),  # 13
    Part.LineSegment(App.Vector(19.3, 73.7, 0), App.Vector(15.5, 73.7, 0)),  # 14
    Part.LineSegment(App.Vector(15.5, 73.7, 0), App.Vector(15.5, 76.2, 0)),  # 15
    Part.LineSegment(App.Vector(15.5, 76.2, 0), App.Vector(38.1, 76.2, 0)),  # 16
    Part.LineSegment(App.Vector(35.6, 73.7, 0), App.Vector(22.9, 73.7, 0)),  # 17
    Part.LineSegment(App.Vector(22.9, 73.7, 0), App.Vector(35.6, 61, 0)),  # 18
    Part.LineSegment(App.Vector(35.6, 61, 0), App.Vector(35.6, 73.7, 0)),  # 19
], False)
sketch8.addConstraint([
    Sketcher.Constraint("Coincident", 0, 2, 1, 1),
    Sketcher.Constraint("Coincident", 1, 2, 2, 1),
    Sketcher.Constraint("Coincident", 2, 2, 3, 1),
    Sketcher.Constraint("Coincident", 3, 2, 4, 1),
    Sketcher.Constraint("Coincident", 4, 2, 5, 1),
    Sketcher.Constraint("Coincident", 5, 2, 6, 1),
    Sketcher.Constraint("Coincident", 6, 2, 0, 1),
    Sketcher.Constraint("Coincident", 7, 2, 8, 1),
    Sketcher.Constraint("Coincident", 8, 2, 9, 1),
    Sketcher.Constraint("Coincident", 9, 2, 7, 1),
    Sketcher.Constraint("Coincident", 10, 2, 11, 1),
    Sketcher.Constraint("Coincident", 11, 2, 12, 1),
    Sketcher.Constraint("Coincident", 12, 2, 13, 1),
    Sketcher.Constraint("Coincident", 13, 2, 14, 1),
    Sketcher.Constraint("Coincident", 14, 2, 15, 1),
    Sketcher.Constraint("Coincident", 15, 2, 16, 1),
    Sketcher.Constraint("Coincident", 16, 2, 10, 1),
    Sketcher.Constraint("Coincident", 17, 2, 18, 1),
    Sketcher.Constraint("Coincident", 18, 2, 19, 1),
    Sketcher.Constraint("Coincident", 19, 2, 17, 1),
    Sketcher.Constraint("Horizontal", 0),
    Sketcher.Constraint("Vertical", 1),
    Sketcher.Constraint("Horizontal", 2),
    Sketcher.Constraint("Vertical", 4),
    Sketcher.Constraint("Horizontal", 5),
    Sketcher.Constraint("Vertical", 6),
    Sketcher.Constraint("Horizontal", 8),
    Sketcher.Constraint("Vertical", 9),
    Sketcher.Constraint("Vertical", 10),
    Sketcher.Constraint("Horizontal", 11),
    Sketcher.Constraint("Vertical", 12),
    Sketcher.Constraint("Horizontal", 14),
    Sketcher.Constraint("Vertical", 15),
    Sketcher.Constraint("Horizontal", 16),
    Sketcher.Constraint("Horizontal", 17),
    Sketcher.Constraint("Vertical", 19),
    Sketcher.Constraint("Symmetric", 5, 2, 10, 2, -2),
    Sketcher.Constraint("Symmetric", 3, 2, 12, 2, -2),
    Sketcher.Constraint("Symmetric", 2, 2, 13, 2, -2),
    Sketcher.Constraint("Symmetric", 0, 2, 15, 2, -2),
    Sketcher.Constraint("Symmetric", 7, 2, 17, 2, -2),
    Sketcher.Constraint("Symmetric", 9, 2, 18, 2, -2),
    Sketcher.Constraint("Parallel", 3, 7),
    Sketcher.Constraint("Perpendicular", 7, 13),
    Sketcher.Constraint("Horizontal", 2, 2, 7, 2),
    Sketcher.Constraint("Vertical", 4, 2, 8, 2),
    Sketcher.Constraint("Equal", 11, 1),
    Sketcher.Constraint("Equal", 14, 4),
    Sketcher.Constraint("DistanceX", 5, 2, 5, 1, Q("0.1 in")),
    Sketcher.Constraint("DistanceX", 8, 2, 8, 1, Q("0.5 in")),
    Sketcher.Constraint("DistanceY", -1, 1, 0, 2, Q("3 in")),
    Sketcher.Constraint("DistanceX", 2, 2, 2, 1, Q("0.15 in")),
    Sketcher.Constraint("DistanceX", 3, 2, -1, 1, Q("1.4 in")),
    Sketcher.Constraint("DistanceX", 0, 1, 0, 2, Q("22.642102 mm")),
])
pad6 = body.newObject("PartDesign::Pad", "Pad005")
pad6.Profile = sketch8
pad6.Length = Q("0.25 in")
pad6.Reversed = True

# Sketch on YZ plane
sketch9 = body.newObject("Sketcher::SketchObject", "Sketch008")
sketch9.AttachmentSupport = (doc.getObject("YZ_Plane"), [""])
sketch9.MapMode = "FlatFace"
sketch9.AttachmentOffset = App.Placement(App.Vector(0, 0, 1.5 * 25.4), App.Rotation())
sketch9.addGeometry([
    Part.LineSegment(App.Vector(19, 60, 0), App.Vector(13, 54, 0)),  # 0
    Part.LineSegment(App.Vector(13, 54, 0), App.Vector(19, 54, 0)),  # 1
    Part.LineSegment(App.Vector(19, 54, 0), App.Vector(19, 60, 0)),  # 2
    Part.LineSegment(App.Vector(0, 60, 0), App.Vector(6, 66, 0)),  # 3
    Part.LineSegment(App.Vector(6, 66, 0), App.Vector(6, 76, 0)),  # 4
    Part.LineSegment(App.Vector(6, 76, 0), App.Vector(0, 76, 0)),  # 5
    Part.LineSegment(App.Vector(0, 76, 0), App.Vector(0, 60, 0)),  # 6
], False)
sketch9.addConstraint([
    Sketcher.Constraint("Coincident", 0, 2, 1, 1),
    Sketcher.Constraint("Coincident", 1, 2, 2, 1),
    Sketcher.Constraint("Coincident", 2, 2, 0, 1),
    Sketcher.Constraint("Coincident", 3, 2, 4, 1),
    Sketcher.Constraint("Coincident", 4, 2, 5, 1),
    Sketcher.Constraint("Coincident", 5, 2, 6, 1),
    Sketcher.Constraint("Coincident", 6, 2, 3, 1),
    Sketcher.Constraint("Horizontal", 1),
    Sketcher.Constraint("Vertical", 2),
    Sketcher.Constraint("Vertical", 4),
    Sketcher.Constraint("Horizontal", 5),
    Sketcher.Constraint("Vertical", 6),
    Sketcher.Constraint("PointOnObject", 5, 2, -2),
    Sketcher.Constraint("Parallel", 0, 3),
    Sketcher.Constraint("Horizontal", 2, 2, 6, 2),
    Sketcher.Constraint("Equal", 1, 5),
    Sketcher.Constraint("Equal", 5, 2),
    Sketcher.Constraint("DistanceY", -1, 1, 4, 2, Q("3 in")),
    Sketcher.Constraint("DistanceX", 1, 1, 1, 2, Q("0.25 in")),
    Sketcher.Constraint("DistanceX", -1, 1, 0, 2, Q("0.5 in")),
    Sketcher.Constraint("DistanceY", 4, 1, 4, 2, Q("9.942102 mm")),
])
pocket3 = body.newObject("PartDesign::Pocket", "Pocket002")
pocket3.Profile = sketch9
pocket3.Type = "ThroughAll"

# Sketch on XY plane
sketch10 = body.newObject("Sketcher::SketchObject", "Sketch009")
sketch10.AttachmentSupport = (doc.getObject("XY_Plane"), [""])
sketch10.MapMode = "FlatFace"
sketch10.AttachmentOffset = App.Placement(App.Vector(0, 0, 3 * 25.4), App.Rotation())
sketch10.addGeometry([
    Part.LineSegment(App.Vector(-19.3, 19.1, 0), App.Vector(-15.5, 12.7, 0)),  # 0
    Part.LineSegment(App.Vector(-15.5, 12.7, 0), App.Vector(-15.5, 19.1, 0)),  # 1
    Part.LineSegment(App.Vector(-15.5, 19.1, 0), App.Vector(-19.3, 19.1, 0)),  # 2
    Part.LineSegment(App.Vector(15.5, 19.1, 0), App.Vector(15.5, 12.7, 0)),  # 3
    Part.LineSegment(App.Vector(15.5, 12.7, 0), App.Vector(19.3, 19.1, 0)),  # 4
    Part.LineSegment(App.Vector(19.3, 19.1, 0), App.Vector(15.5, 19.1, 0)),  # 5
    Part.LineSegment(App.Vector(-15.5, 10.2, 0), App.Vector(-19.3, 6.3, 0)),  # 6
    Part.LineSegment(App.Vector(-19.3, 6.3, 0), App.Vector(19.3, 6.3, 0)),  # 7
    Part.LineSegment(App.Vector(19.3, 6.3, 0), App.Vector(15.5, 10.2, 0)),  # 8
    Part.LineSegment(App.Vector(15.5, 10.2, 0), App.Vector(-15.5, 10.2, 0)),  # 9
], False)
sketch10.addConstraint([
    Sketcher.Constraint("Coincident", 0, 2, 1, 1),
    Sketcher.Constraint("Coincident", 1, 2, 2, 1),
    Sketcher.Constraint("Coincident", 2, 2, 0, 1),
    Sketcher.Constraint("Coincident", 3, 2, 4, 1),
    Sketcher.Constraint("Coincident", 4, 2, 5, 1),
    Sketcher.Constraint("Coincident", 5, 2, 3, 1),
    Sketcher.Constraint("Coincident", 6, 2, 7, 1),
    Sketcher.Constraint("Coincident", 7, 2, 8, 1),
    Sketcher.Constraint("Coincident", 8, 2, 9, 1),
    Sketcher.Constraint("Coincident", 9, 2, 6, 1),
    Sketcher.Constraint("Vertical", 1),
    Sketcher.Constraint("Horizontal", 2),
    Sketcher.Constraint("Vertical", 3),
    Sketcher.Constraint("Horizontal", 5),
    Sketcher.Constraint("Horizontal", 7),
    Sketcher.Constraint("Horizontal", 9),
    Sketcher.Constraint("Symmetric", 0, 2, 3, 2, -2),
    Sketcher.Constraint("Symmetric", 2, 2, 4, 2, -2),
    Sketcher.Constraint("Perpendicular", 6, 8),
    Sketcher.Constraint("Vertical", 2, 2, 6, 2),
    Sketcher.Constraint("Vertical", 4, 2, 7, 2),
    Sketcher.Constraint("Vertical", 5, 2, 8, 2),
    Sketcher.Constraint("Vertical", 1, 2, 9, 2),
    Sketcher.Constraint("DistanceX", 2, 2, 2, 1, Q("0.15 in")),
    Sketcher.Constraint("DistanceY", 1, 1, 1, 2, Q("0.25 in")),
    Sketcher.Constraint("DistanceY", -1, 1, 0, 2, Q("0.5 in")),
    Sketcher.Constraint("DistanceY", -1, 1, 8, 2, Q("0.4 in")),
    Sketcher.Constraint("DistanceX", 7, 1, 7, 2, Q("38.535795 mm")),
])
pocket4 = body.newObject("PartDesign::Pocket", "Pocket003")
pocket4.Profile = sketch10
pocket4.Length = Q("0.1 in")

# Sketch on XY plane
sketch11 = body.newObject("Sketcher::SketchObject", "Sketch010")
sketch11.AttachmentSupport = (doc.getObject("XY_Plane"), [""])
sketch11.MapMode = "FlatFace"
sketch11.AttachmentOffset = App.Placement(App.Vector(0, 0, 3 * 25.4), App.Rotation())
sketch11.addGeometry([
    Part.LineSegment(App.Vector(-36, 17, 0), App.Vector(-36, 9, 0)),  # 0
    Part.LineSegment(App.Vector(-36, 9, 0), App.Vector(-23, 9, 0)),  # 1
    Part.LineSegment(App.Vector(-23, 9, 0), App.Vector(-23, 17, 0)),  # 2
    Part.LineSegment(App.Vector(-23, 17, 0), App.Vector(-36, 17, 0)),  # 3
    Part.LineSegment(App.Vector(23, 17, 0), App.Vector(23, 9, 0)),  # 4
    Part.LineSegment(App.Vector(23, 9, 0), App.Vector(36, 9, 0)),  # 5
    Part.LineSegment(App.Vector(36, 9, 0), App.Vector(36, 17, 0)),  # 6
    Part.LineSegment(App.Vector(36, 17, 0), App.Vector(23, 17, 0)),  # 7
], False)
sketch11.addConstraint([
    Sketcher.Constraint("Coincident", 0, 2, 1, 1),
    Sketcher.Constraint("Coincident", 1, 2, 2, 1),
    Sketcher.Constraint("Coincident", 2, 2, 3, 1),
    Sketcher.Constraint("Coincident", 3, 2, 0, 1),
    Sketcher.Constraint("Coincident", 4, 2, 5, 1),
    Sketcher.Constraint("Coincident", 5, 2, 6, 1),
    Sketcher.Constraint("Coincident", 6, 2, 7, 1),
    Sketcher.Constraint("Coincident", 7, 2, 4, 1),
    Sketcher.Constraint("Vertical", 0),
    Sketcher.Constraint("Horizontal", 1),
    Sketcher.Constraint("Vertical", 2),
    Sketcher.Constraint("Horizontal", 3),
    Sketcher.Constraint("Vertical", 4),
    Sketcher.Constraint("Horizontal", 5),
    Sketcher.Constraint("Vertical", 6),
    Sketcher.Constraint("Horizontal", 7),
    Sketcher.Constraint("Symmetric", 1, 2, 4, 2, -2),
    Sketcher.Constraint("Symmetric", 3, 2, 6, 2, -2),
    Sketcher.Constraint("DistanceX", 1, 1, 1, 2, Q("0.5 in")),
    Sketcher.Constraint("DistanceY", 0, 2, 0, 1, Q("0.3 in")),
    Sketcher.Constraint("DistanceX", 0, 2, -1, 1, Q("1.4 in")),
    Sketcher.Constraint("DistanceY", -1, 1, 0, 2, Q("0.35 in")),
])
pocket5 = body.newObject("PartDesign::Pocket", "Pocket004")
pocket5.Profile = sketch11
pocket5.Length = Q("0.1 in")

# Sketch on YZ plane
sketch12 = body.newObject("Sketcher::SketchObject", "Sketch011")
sketch12.AttachmentSupport = (doc.getObject("YZ_Plane"), [""])
sketch12.MapMode = "FlatFace"
sketch12.AttachmentOffset = App.Placement(App.Vector(0, 0, 1.5 * 25.4), App.Rotation())
sketch12.addGeometry([
    Part.LineSegment(App.Vector(12.7, -38.1, 0), App.Vector(19.1, -44.5, 0)),  # 0
    Part.LineSegment(App.Vector(19.1, -44.5, 0), App.Vector(19.1, -38.1, 0)),  # 1
    Part.LineSegment(App.Vector(19.1, -38.1, 0), App.Vector(12.7, -38.1, 0)),  # 2
    Part.LineSegment(App.Vector(6.3, -47, 0), App.Vector(0, -40.6, 0)),  # 3
    Part.LineSegment(App.Vector(0, -40.6, 0), App.Vector(0, -92.7, 0)),  # 4
    Part.LineSegment(App.Vector(0, -92.7, 0), App.Vector(6.3, -76.2, 0)),  # 5
    Part.LineSegment(App.Vector(6.3, -76.2, 0), App.Vector(6.3, -47, 0)),  # 6
    Part.LineSegment(App.Vector(19.1, -76.2, 0), App.Vector(12.7, -92.7, 0)),  # 7
    Part.LineSegment(App.Vector(12.7, -92.7, 0), App.Vector(12.7, -95.2, 0)),  # 8
    Part.LineSegment(App.Vector(12.7, -95.2, 0), App.Vector(19.1, -95.2, 0)),  # 9
    Part.LineSegment(App.Vector(19.1, -95.2, 0), App.Vector(19.1, -76.2, 0)),  # 10
], False)
sketch12.addConstraint([
    Sketcher.Constraint("Coincident", 0, 2, 1, 1),
    Sketcher.Constraint("Coincident", 1, 2, 2, 1),
    Sketcher.Constraint("Coincident", 2, 2, 0, 1),
    Sketcher.Constraint("Coincident", 3, 2, 4, 1),
    Sketcher.Constraint("Coincident", 4, 2, 5, 1),
    Sketcher.Constraint("Coincident", 5, 2, 6, 1),
    Sketcher.Constraint("Coincident", 6, 2, 3, 1),
    Sketcher.Constraint("Coincident", 7, 2, 8, 1),
    Sketcher.Constraint("Coincident", 8, 2, 9, 1),
    Sketcher.Constraint("Coincident", 9, 2, 10, 1),
    Sketcher.Constraint("Coincident", 10, 2, 7, 1),
    Sketcher.Constraint("Vertical", 1),
    Sketcher.Constraint("Horizontal", 2),
    Sketcher.Constraint("Vertical", 4),
    Sketcher.Constraint("Vertical", 6),
    Sketcher.Constraint("Vertical", 8),
    Sketcher.Constraint("Horizontal", 9),
    Sketcher.Constraint("Vertical", 10),
    Sketcher.Constraint("PointOnObject", 3, 2, -2),
    Sketcher.Constraint("Parallel", 0, 3),
    Sketcher.Constraint("Parallel", 5, 7),
    Sketcher.Constraint("Horizontal", 4, 2, 7, 2),
    Sketcher.Constraint("Horizontal", 5, 2, 10, 2),
    Sketcher.Constraint("Vertical", 2, 2, 7, 2),
    Sketcher.Constraint("Vertical", 1, 2, 9, 2),
    Sketcher.Constraint("Equal", 9, 1),
    Sketcher.Constraint("DistanceY", 8, 2, 8, 1, Q("0.1 in")),
    Sketcher.Constraint("DistanceY", 5, 2, -1, 1, Q("3 in")),
    Sketcher.Constraint("DistanceY", 8, 2, 0, 2, Q("2 in")),
    Sketcher.Constraint("DistanceX", 2, 2, 2, 1, Q("0.25 in")),
    Sketcher.Constraint("DistanceY", 4, 2, 4, 1, Q("2.05 in")),
    Sketcher.Constraint("DistanceY", 6, 1, 6, 2, Q("1.15 in")),
    Sketcher.Constraint("DistanceX", -1, 1, 2, 2, Q("0.5 in")),
])
pocket6 = body.newObject("PartDesign::Pocket", "Pocket005")
pocket6.Profile = sketch12
pocket6.Length = Q("0.5 in")

# Sketch on YZ plane
sketch13 = body.newObject("Sketcher::SketchObject", "Sketch012")
sketch13.AttachmentSupport = (doc.getObject("YZ_Plane"), [""])
sketch13.MapMode = "FlatFace"
sketch13.AttachmentOffset = App.Placement(App.Vector(0, 0, -1.5 * 25.4), App.Rotation())
sketch13.addGeometry([
    Part.LineSegment(App.Vector(19.1, -44.5, 0), App.Vector(12.7, -38.1, 0)),  # 0
    Part.LineSegment(App.Vector(12.7, -38.1, 0), App.Vector(19.1, -38.1, 0)),  # 1
    Part.LineSegment(App.Vector(19.1, -38.1, 0), App.Vector(19.1, -44.5, 0)),  # 2
    Part.LineSegment(App.Vector(0, -40.6, 0), App.Vector(6.3, -47, 0)),  # 3
    Part.LineSegment(App.Vector(6.3, -47, 0), App.Vector(6.3, -76.2, 0)),  # 4
    Part.LineSegment(App.Vector(6.3, -76.2, 0), App.Vector(0, -92.7, 0)),  # 5
    Part.LineSegment(App.Vector(0, -92.7, 0), App.Vector(0, -40.6, 0)),  # 6
    Part.LineSegment(App.Vector(12.7, -92.7, 0), App.Vector(19.1, -76.2, 0)),  # 7
    Part.LineSegment(App.Vector(19.1, -76.2, 0), App.Vector(19.1, -95.2, 0)),  # 8
    Part.LineSegment(App.Vector(19.1, -95.2, 0), App.Vector(12.7, -95.2, 0)),  # 9
    Part.LineSegment(App.Vector(12.7, -95.2, 0), App.Vector(12.7, -92.7, 0)),  # 10
], False)
sketch13.addConstraint([
    Sketcher.Constraint("Coincident", 0, 2, 1, 1),
    Sketcher.Constraint("Coincident", 1, 2, 2, 1),
    Sketcher.Constraint("Coincident", 2, 2, 0, 1),
    Sketcher.Constraint("Coincident", 3, 2, 4, 1),
    Sketcher.Constraint("Coincident", 4, 2, 5, 1),
    Sketcher.Constraint("Coincident", 5, 2, 6, 1),
    Sketcher.Constraint("Coincident", 6, 2, 3, 1),
    Sketcher.Constraint("Coincident", 7, 2, 8, 1),
    Sketcher.Constraint("Coincident", 8, 2, 9, 1),
    Sketcher.Constraint("Coincident", 9, 2, 10, 1),
    Sketcher.Constraint("Coincident", 10, 2, 7, 1),
    Sketcher.Constraint("Horizontal", 1),
    Sketcher.Constraint("Vertical", 2),
    Sketcher.Constraint("Vertical", 4),
    Sketcher.Constraint("Vertical", 6),
    Sketcher.Constraint("Vertical", 8),
    Sketcher.Constraint("Horizontal", 9),
    Sketcher.Constraint("Vertical", 10),
    Sketcher.Constraint("PointOnObject", 5, 2, -2),
    Sketcher.Constraint("Parallel", 0, 3),
    Sketcher.Constraint("Parallel", 5, 7),
    Sketcher.Constraint("Horizontal", 4, 2, 7, 2),
    Sketcher.Constraint("Horizontal", 5, 2, 10, 2),
    Sketcher.Constraint("Vertical", 2, 2, 7, 2),
    Sketcher.Constraint("Vertical", 0, 2, 9, 2),
    Sketcher.Constraint("Equal", 9, 2),
    Sketcher.Constraint("DistanceY", 10, 1, 10, 2, Q("0.1 in")),
    Sketcher.Constraint("DistanceY", 4, 2, -1, 1, Q("3 in")),
    Sketcher.Constraint("DistanceY", 8, 2, 2, 2, Q("2 in")),
    Sketcher.Constraint("DistanceX", 1, 1, 1, 2, Q("0.25 in")),
    Sketcher.Constraint("DistanceY", 4, 2, 4, 1, Q("1.15 in")),
    Sketcher.Constraint("DistanceY", 6, 1, 6, 2, Q("2.05 in")),
    Sketcher.Constraint("DistanceX", -1, 1, 0, 2, Q("0.5 in")),
])
pocket7 = body.newObject("PartDesign::Pocket", "Pocket006")
pocket7.Profile = sketch13
pocket7.Length = Q("0.5 in")
pocket7.Reversed = True

# Sketch on YZ plane
sketch14 = body.newObject("Sketcher::SketchObject", "Sketch013")
sketch14.AttachmentSupport = (doc.getObject("YZ_Plane"), [""])
sketch14.MapMode = "FlatFace"
sketch14.AttachmentOffset = App.Placement(App.Vector(0, 0, 1.5 * 25.4), App.Rotation())
sketch14.addGeometry([
    Part.Circle(App.Vector(12.7, -45.7, 0), App.Vector(0, 0, 1), 2),  # 0
    Part.Circle(App.Vector(12.7, -53.3, 0), App.Vector(0, 0, 1), 2),  # 1
    Part.Circle(App.Vector(12.7, -61, 0), App.Vector(0, 0, 1), 2),  # 2
    Part.Circle(App.Vector(12.7, -68.6, 0), App.Vector(0, 0, 1), 2),  # 3
    Part.Circle(App.Vector(12.7, 69.8, 0), App.Vector(0, 0, 1), 2),  # 4
], False)
sketch14.addConstraint([
    Sketcher.Constraint("Equal", 0, 1),
    Sketcher.Constraint("Equal", 1, 2),
    Sketcher.Constraint("Equal", 2, 3),
    Sketcher.Constraint("Equal", 3, 4),
    Sketcher.Constraint("Vertical", 0, 3, 1, 3),
    Sketcher.Constraint("Vertical", 1, 3, 2, 3),
    Sketcher.Constraint("Vertical", 2, 3, 3, 3),
    Sketcher.Constraint("Vertical", 3, 3, 4, 3),
    Sketcher.Constraint("Diameter", 0, Q("0.16 in")),
    Sketcher.Constraint("DistanceX", -1, 1, 0, 3, Q("0.5 in")),
    Sketcher.Constraint("DistanceY", 0, 3, -1, 1, Q("1.8 in")),
    Sketcher.Constraint("DistanceY", 1, 3, -1, 1, Q("2.1 in")),
    Sketcher.Constraint("DistanceY", 2, 3, -1, 1, Q("2.4 in")),
    Sketcher.Constraint("DistanceY", 3, 3, -1, 1, Q("2.7 in")),
    Sketcher.Constraint("DistanceY", -1, 1, 4, 3, Q("2.75 in")),
])
pocket8 = body.newObject("PartDesign::Pocket", "Pocket007")
pocket8.Profile = sketch14
pocket8.Type = "ThroughAll"

# Sketch on YZ plane
sketch15 = body.newObject("Sketcher::SketchObject", "Sketch014")
sketch15.AttachmentSupport = (doc.getObject("YZ_Plane"), [""])
sketch15.MapMode = "FlatFace"
sketch15.AttachmentOffset = App.Placement(App.Vector(0, 0, -0.8325 * 25.4), App.Rotation())
sketch15.addGeometry([
    Part.LineSegment(App.Vector(2.5, -20.3, 0), App.Vector(0, -20.3, 0)),
    Part.LineSegment(App.Vector(0, -20.3, 0), App.Vector(0, -17.8, 0)),
    Part.LineSegment(App.Vector(0, -17.8, 0), App.Vector(2.5, -17.8, 0)),
    Part.LineSegment(App.Vector(2.5, -17.8, 0), App.Vector(2.5, -20.3, 0)),
], False)
sketch15.addConstraint([
    Sketcher.Constraint("Coincident", 0, 2, 1, 1),
    Sketcher.Constraint("Coincident", 1, 2, 2, 1),
    Sketcher.Constraint("Coincident", 2, 2, 3, 1),
    Sketcher.Constraint("Coincident", 3, 2, 0, 1),
    Sketcher.Constraint("Horizontal", 0),
    Sketcher.Constraint("Vertical", 1),
    Sketcher.Constraint("Horizontal", 2),
    Sketcher.Constraint("Vertical", 3),
    Sketcher.Constraint("PointOnObject", 0, 2, -2),
    Sketcher.Constraint("Equal", 2, 1),
    Sketcher.Constraint("DistanceX", 0, 2, 0, 1, Q("0.1 in")),
    Sketcher.Constraint("DistanceY", 0, 2, -1, 1, Q("0.8 in")),
])
pad7 = body.newObject("PartDesign::Pad", "Pad006")
pad7.Profile = sketch15
pad7.Length = Q("0.6 in")
pad7.Reversed = True

# Sketch on XY plane
sketch16 = body.newObject("Sketcher::SketchObject", "Sketch015")
sketch16.AttachmentSupport = (doc.getObject("XY_Plane"), [""])
sketch16.MapMode = "FlatFace"
sketch16.AttachmentOffset = App.Placement(App.Vector(0, 0, -3.65 * 25.4), App.Rotation())
sketch16.addGeometry([
    Part.LineSegment(App.Vector(-32, 13, 0), App.Vector(-22, 8, 0)),
    Part.LineSegment(App.Vector(-22, 8, 0), App.Vector(22, 8, 0)),
    Part.LineSegment(App.Vector(22, 8, 0), App.Vector(32, 13, 0)),
    Part.LineSegment(App.Vector(32, 13, 0), App.Vector(-32, 13, 0)),
], False)
sketch16.addConstraint([
    Sketcher.Constraint("Coincident", 0, 2, 1, 1),
    Sketcher.Constraint("Coincident", 1, 2, 2, 1),
    Sketcher.Constraint("Coincident", 2, 2, 3, 1),
    Sketcher.Constraint("Coincident", 3, 2, 0, 1),
    Sketcher.Constraint("Horizontal", 1),
    Sketcher.Constraint("Horizontal", 3),
    Sketcher.Constraint("Equal", 0, 2),
    Sketcher.Constraint("DistanceX", 1, 1, 1, 2, Q("1.7 in")),
    Sketcher.Constraint("DistanceX", 3, 2, 3, 1, Q("2.5 in")),
    Sketcher.Constraint("DistanceY", -1, 1, 0, 2, Q("0.3 in")),
    Sketcher.Constraint("DistanceY", -1, 1, 2, 2, Q("0.5 in")),
    Sketcher.Constraint("DistanceX", 0, 2, -1, 1, Q("0.85 in")),
])
pocket9 = body.newObject("PartDesign::Pocket", "Pocket008")
pocket9.Profile = sketch16
pocket9.Length = Q("0.1 in")

doc.recompute()
